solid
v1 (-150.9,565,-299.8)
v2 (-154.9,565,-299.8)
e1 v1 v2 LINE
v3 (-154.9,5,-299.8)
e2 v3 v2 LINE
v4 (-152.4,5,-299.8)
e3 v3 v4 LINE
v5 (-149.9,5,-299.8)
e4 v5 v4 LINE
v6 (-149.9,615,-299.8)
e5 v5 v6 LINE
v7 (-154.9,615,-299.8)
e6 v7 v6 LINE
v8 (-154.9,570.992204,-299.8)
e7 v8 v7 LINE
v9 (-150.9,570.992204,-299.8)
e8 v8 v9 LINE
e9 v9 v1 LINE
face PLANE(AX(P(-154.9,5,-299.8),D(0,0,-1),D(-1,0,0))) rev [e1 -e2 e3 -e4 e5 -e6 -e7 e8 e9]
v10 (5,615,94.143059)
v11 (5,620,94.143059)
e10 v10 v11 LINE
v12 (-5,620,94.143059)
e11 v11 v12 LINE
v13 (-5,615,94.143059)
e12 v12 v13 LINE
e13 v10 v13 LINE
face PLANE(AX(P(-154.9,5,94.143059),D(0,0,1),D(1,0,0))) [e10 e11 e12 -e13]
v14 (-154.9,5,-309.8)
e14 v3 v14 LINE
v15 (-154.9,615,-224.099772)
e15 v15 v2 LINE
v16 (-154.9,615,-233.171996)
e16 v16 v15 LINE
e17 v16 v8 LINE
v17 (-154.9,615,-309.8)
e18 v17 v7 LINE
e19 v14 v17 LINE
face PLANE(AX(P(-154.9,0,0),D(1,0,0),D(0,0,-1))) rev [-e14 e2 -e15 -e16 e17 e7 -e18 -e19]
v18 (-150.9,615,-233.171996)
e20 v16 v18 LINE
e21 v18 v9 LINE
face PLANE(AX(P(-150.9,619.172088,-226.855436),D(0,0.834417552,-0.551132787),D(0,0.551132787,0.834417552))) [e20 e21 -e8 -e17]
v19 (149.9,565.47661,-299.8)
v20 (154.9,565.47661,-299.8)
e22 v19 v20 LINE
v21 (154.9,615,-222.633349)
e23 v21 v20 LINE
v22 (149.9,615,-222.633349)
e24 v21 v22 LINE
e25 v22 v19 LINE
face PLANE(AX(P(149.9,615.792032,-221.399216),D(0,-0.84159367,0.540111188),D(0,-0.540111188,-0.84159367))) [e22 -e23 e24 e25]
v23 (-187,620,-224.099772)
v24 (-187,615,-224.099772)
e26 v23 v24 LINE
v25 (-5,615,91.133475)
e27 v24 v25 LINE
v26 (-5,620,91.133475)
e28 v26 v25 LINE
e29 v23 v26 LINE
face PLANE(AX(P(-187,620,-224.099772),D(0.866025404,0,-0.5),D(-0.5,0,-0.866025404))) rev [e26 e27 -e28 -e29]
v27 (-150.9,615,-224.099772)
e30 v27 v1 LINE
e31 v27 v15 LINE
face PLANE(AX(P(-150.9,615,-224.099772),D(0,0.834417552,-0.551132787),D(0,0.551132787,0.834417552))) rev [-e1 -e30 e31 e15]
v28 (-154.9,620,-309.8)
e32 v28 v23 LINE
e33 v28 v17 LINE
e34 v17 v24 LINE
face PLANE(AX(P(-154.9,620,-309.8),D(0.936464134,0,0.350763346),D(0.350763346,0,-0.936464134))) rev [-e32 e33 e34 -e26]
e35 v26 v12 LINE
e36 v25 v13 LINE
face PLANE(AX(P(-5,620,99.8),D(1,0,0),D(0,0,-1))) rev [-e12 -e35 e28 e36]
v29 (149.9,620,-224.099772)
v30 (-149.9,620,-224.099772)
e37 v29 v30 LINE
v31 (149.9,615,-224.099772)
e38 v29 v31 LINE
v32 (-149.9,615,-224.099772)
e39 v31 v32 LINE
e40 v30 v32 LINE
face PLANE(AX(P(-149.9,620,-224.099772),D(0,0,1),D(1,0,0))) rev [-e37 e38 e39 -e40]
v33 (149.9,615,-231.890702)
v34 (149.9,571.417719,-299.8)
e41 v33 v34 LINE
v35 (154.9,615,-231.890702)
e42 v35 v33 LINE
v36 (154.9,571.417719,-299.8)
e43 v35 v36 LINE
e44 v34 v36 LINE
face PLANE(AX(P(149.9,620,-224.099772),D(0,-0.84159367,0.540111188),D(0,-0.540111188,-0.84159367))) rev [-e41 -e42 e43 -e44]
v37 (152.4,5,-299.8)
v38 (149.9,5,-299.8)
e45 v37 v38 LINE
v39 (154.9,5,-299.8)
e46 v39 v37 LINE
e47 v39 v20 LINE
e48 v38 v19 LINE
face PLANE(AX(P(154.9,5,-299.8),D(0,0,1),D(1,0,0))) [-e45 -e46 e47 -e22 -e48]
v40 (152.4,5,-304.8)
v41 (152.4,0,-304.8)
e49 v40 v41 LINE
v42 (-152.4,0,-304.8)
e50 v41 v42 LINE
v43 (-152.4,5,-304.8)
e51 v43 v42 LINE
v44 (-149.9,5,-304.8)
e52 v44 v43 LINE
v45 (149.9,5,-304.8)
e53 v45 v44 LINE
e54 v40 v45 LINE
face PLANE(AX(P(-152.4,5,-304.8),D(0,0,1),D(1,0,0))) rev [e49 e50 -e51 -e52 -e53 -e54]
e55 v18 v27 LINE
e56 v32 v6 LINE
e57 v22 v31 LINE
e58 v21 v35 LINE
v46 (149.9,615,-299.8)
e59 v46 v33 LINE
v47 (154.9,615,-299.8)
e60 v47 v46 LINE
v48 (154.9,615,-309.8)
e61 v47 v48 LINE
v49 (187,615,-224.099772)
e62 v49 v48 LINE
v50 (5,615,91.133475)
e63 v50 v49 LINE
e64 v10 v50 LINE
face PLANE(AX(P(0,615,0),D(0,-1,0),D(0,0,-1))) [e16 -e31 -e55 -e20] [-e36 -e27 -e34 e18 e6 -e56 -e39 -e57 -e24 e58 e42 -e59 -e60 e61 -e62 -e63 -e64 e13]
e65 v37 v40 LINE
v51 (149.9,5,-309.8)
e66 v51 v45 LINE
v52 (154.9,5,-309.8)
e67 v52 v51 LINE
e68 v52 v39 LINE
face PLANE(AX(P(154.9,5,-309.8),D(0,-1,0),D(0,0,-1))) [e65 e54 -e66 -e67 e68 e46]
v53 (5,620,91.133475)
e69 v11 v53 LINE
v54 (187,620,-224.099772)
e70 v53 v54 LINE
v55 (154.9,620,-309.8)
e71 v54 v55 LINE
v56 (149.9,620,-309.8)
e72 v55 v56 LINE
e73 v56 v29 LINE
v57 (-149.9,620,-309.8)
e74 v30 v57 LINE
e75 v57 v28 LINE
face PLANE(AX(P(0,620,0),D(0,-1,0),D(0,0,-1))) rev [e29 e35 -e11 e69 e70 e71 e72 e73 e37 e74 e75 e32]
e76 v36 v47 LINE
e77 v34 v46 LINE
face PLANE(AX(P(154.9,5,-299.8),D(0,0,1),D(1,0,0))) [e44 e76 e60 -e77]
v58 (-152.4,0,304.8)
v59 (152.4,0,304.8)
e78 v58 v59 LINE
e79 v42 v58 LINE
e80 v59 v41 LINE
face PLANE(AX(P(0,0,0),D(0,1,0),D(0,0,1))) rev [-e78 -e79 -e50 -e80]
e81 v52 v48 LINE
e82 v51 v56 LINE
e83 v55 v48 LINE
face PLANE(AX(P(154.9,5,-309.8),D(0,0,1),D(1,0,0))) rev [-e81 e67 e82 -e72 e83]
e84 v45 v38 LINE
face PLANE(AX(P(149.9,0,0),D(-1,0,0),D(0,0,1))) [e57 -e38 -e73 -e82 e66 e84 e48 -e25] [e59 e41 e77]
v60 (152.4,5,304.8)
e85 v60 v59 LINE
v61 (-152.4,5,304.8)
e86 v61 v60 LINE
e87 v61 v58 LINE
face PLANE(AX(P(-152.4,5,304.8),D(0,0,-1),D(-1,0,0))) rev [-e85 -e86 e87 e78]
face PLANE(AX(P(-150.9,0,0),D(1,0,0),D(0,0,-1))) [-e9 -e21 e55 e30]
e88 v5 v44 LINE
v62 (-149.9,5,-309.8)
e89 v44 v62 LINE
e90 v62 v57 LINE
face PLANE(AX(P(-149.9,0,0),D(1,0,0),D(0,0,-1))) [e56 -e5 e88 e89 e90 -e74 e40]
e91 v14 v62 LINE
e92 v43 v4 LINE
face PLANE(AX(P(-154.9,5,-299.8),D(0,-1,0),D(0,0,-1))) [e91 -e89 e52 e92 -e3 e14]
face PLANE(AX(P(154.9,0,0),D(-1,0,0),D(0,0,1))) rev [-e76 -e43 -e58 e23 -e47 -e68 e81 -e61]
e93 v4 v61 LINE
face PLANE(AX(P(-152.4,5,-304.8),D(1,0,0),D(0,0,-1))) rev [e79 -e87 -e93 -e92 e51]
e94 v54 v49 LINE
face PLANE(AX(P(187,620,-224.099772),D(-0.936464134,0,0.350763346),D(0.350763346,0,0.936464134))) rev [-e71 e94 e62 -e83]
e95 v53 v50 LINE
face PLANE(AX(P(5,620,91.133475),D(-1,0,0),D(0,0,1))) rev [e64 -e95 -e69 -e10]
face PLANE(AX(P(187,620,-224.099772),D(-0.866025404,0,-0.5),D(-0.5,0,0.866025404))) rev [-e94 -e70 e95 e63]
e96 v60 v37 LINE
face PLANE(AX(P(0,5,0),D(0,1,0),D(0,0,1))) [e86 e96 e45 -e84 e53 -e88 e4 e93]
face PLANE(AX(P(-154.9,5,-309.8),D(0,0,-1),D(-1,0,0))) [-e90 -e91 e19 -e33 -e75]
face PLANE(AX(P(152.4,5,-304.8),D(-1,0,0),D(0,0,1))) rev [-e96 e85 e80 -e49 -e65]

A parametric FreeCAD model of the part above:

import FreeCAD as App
import Part
import Sketcher

V = App.Vector
Q = App.Units.Quantity


def add_polygon(sketch, points):
    """Adds a closed chain of lines whose ends are joined by coincident constraints."""
    first, n = sketch.GeometryCount, len(points)
    for a, b in zip(points, points[1:] + points[:1]):
        sketch.addGeometry(Part.LineSegment(App.Vector(*a, 0), App.Vector(*b, 0)), False)
    for i in range(n):
        sketch.addConstraint(Sketcher.Constraint("Coincident", first + i, 2, first + (i + 1) % n, 1))

doc = App.newDocument("Part")
params = doc.addObject("Spreadsheet::Sheet", "Params")
for row, (alias, value) in enumerate([
    ("sketch1_width", "304.8 mm"),
    ("sketch1_height", "609.6 mm"),
    ("pad1_length", "5 mm"),
    ("sketch2_width", "610 mm"),
    ("sketch2_height", "10 mm"),
    ("pad2_length", "5 mm"),
    ("sketch3_width", "610 mm"),
    ("sketch3_height", "10 mm"),
    ("pad3_length", "5 mm"),
    ("sketch4_width", "5 mm"),
    ("sketch4_height", "10 mm"),
    ("sketch4_length", "364 mm"),
    ("sketch4_width2", "309.8 mm"),
    ("sketch4_width3", "149.9 mm"),
    ("pad4_length", "5 mm"),
    ("sketch5_length", "5 mm"),
    ("pad5_length", "4 mm"),
    ("sketch6_length", "5 mm"),
    ("pad6_length", "5 mm"),
    ("sketch7_width", "309.8 mm"),
    ("pocket1_length", "615 mm"),
], start=1):
    params.set(f"A{row}", alias)
    params.set(f"B{row}", "=" + value)
    params.setAlias(f"B{row}", alias)

body = doc.addObject("PartDesign::Body", "Body")

sketch1 = body.newObject("Sketcher::SketchObject", "Sketch")
sketch1.AttachmentSupport = (doc.getObject("XZ_Plane"), [""])
sketch1.MapMode = "FlatFace"
add_polygon(sketch1, [(-152, -305), (-152, 305), (152, 305), (152, -305)])
sketch1.addConstraint([
    Sketcher.Constraint("Vertical", 0),
    Sketcher.Constraint("Horizontal", 1),
    Sketcher.Constraint("Vertical", 2),
    Sketcher.Constraint("Horizontal", 3),
    Sketcher.Constraint("Symmetric", 0, 2, 2, 2, -1, 1),
    Sketcher.Constraint("DistanceX", 1, 1, 1, 2, 304.8),
    Sketcher.Constraint("DistanceY", 0, 1, 0, 2, 609.6),
])
sketch1.setExpression("Constraints[9]", "Params.sketch1_width")
sketch1.setExpression("Constraints[10]", "Params.sketch1_height")
pad1 = body.newObject("PartDesign::Pad", "Pad")
pad1.Profile = sketch1
pad1.setExpression("Length", "Params.pad1_length")
pad1.Reversed = True

sketch2 = body.newObject("Sketcher::SketchObject", "Sketch001")
sketch2.AttachmentSupport = (doc.getObject("YZ_Plane"), [""])
sketch2.MapMode = "FlatFace"
sketch2.AttachmentOffset = App.Placement(V(0, 0, 152.4), App.Rotation())
add_polygon(sketch2, [(615, 310), (5, 310), (5, 300), (615, 300)])
add_polygon(sketch2, [(615, -300), (5, -300), (5, -310), (615, -310)])
sketch2.addConstraint([
    Sketcher.Constraint("Horizontal", 0),
    Sketcher.Constraint("Vertical", 1),
    Sketcher.Constraint("Horizontal", 2),
    Sketcher.Constraint("Vertical", 3),
    Sketcher.Constraint("Horizontal", 4),
    Sketcher.Constraint("Vertical", 5),
    Sketcher.Constraint("Horizontal", 6),
    Sketcher.Constraint("Vertical", 7),
    Sketcher.Constraint("Symmetric", 1, 2, 4, 2, -1),
    Sketcher.Constraint("Symmetric", 3, 2, 6, 2, -1),
    Sketcher.Constraint("DistanceX", 0, 2, 0, 1, 610.0),
    Sketcher.Constraint("DistanceY", 1, 2, 1, 1, 10.0),
    Sketcher.Constraint("DistanceX", -1, 1, 0, 2, 5.0),
    Sketcher.Constraint("DistanceY", -1, 1, 0, 2, 309.8),
])
sketch2.setExpression("Constraints[18]", "Params.sketch2_width")
sketch2.setExpression("Constraints[19]", "Params.sketch2_height")
pad2 = body.newObject("PartDesign::Pad", "Pad001")
pad2.Profile = sketch2
pad2.setExpression("Length", "Params.pad2_length")
pad2.Midplane = True

sketch3 = body.newObject("Sketcher::SketchObject", "Sketch002")
sketch3.AttachmentSupport = (doc.getObject("YZ_Plane"), [""])
sketch3.MapMode = "FlatFace"
sketch3.AttachmentOffset = App.Placement(V(0, 0, -152.4), App.Rotation())
add_polygon(sketch3, [(615, -310), (5, -310), (5, -300), (615, -300)])
add_polygon(sketch3, [(615, 300), (5, 300), (5, 310), (615, 310)])
sketch3.addConstraint([
    Sketcher.Constraint("Horizontal", 0),
    Sketcher.Constraint("Vertical", 1),
    Sketcher.Constraint("Horizontal", 2),
    Sketcher.Constraint("Vertical", 3),
    Sketcher.Constraint("Horizontal", 4),
    Sketcher.Constraint("Vertical", 5),
    Sketcher.Constraint("Horizontal", 6),
    Sketcher.Constraint("Vertical", 7),
    Sketcher.Constraint("Symmetric", 1, 2, 4, 2, -1),
    Sketcher.Constraint("Symmetric", 3, 2, 6, 2, -1),
    Sketcher.Constraint("DistanceX", 0, 2, 0, 1, 610.0),
    Sketcher.Constraint("DistanceY", 1, 1, 1, 2, 10.0),
    Sketcher.Constraint("DistanceX", -1, 1, 0, 2, 5.0),
    Sketcher.Constraint("DistanceY", 0, 2, -1, 1, 309.8),
])
sketch3.setExpression("Constraints[18]", "Params.sketch3_width")
sketch3.setExpression("Constraints[19]", "Params.sketch3_height")
pad3 = body.newObject("PartDesign::Pad", "Pad002")
pad3.Profile = sketch3
pad3.setExpression("Length", "Params.pad3_length")
pad3.Midplane = True

sketch4 = body.newObject("Sketcher::SketchObject", "Sketch003")
sketch4.AttachmentSupport = (doc.getObject("XZ_Plane"), [""])
sketch4.MapMode = "FlatFace"
sketch4.AttachmentOffset = App.Placement(V(0, 0, -615), App.Rotation())
add_polygon(sketch4, [(-155, 310), (155, 310), (155, 300), (5, 300), (5, 91), (187, -224), (155, -310), (150, -310), (150, -224), (-150, -224), (-150, -310), (-155, -310), (-187, -224), (-5, 91), (-5, 300), (-155, 300)])
sketch4.addConstraint([
    Sketcher.Constraint("Horizontal", 0),
    Sketcher.Constraint("Vertical", 1),
    Sketcher.Constraint("Horizontal", 2),
    Sketcher.Constraint("Vertical", 3),
    Sketcher.Constraint("Horizontal", 6),
    Sketcher.Constraint("Vertical", 7),
    Sketcher.Constraint("Horizontal", 8),
    Sketcher.Constraint("Vertical", 9),
    Sketcher.Constraint("Horizontal", 10),
    Sketcher.Constraint("Vertical", 13),
    Sketcher.Constraint("Horizontal", 14),
    Sketcher.Constraint("Vertical", 15),
    Sketcher.Constraint("Symmetric", 0, 2, 10, 2, -1, 1),
    Sketcher.Constraint("Symmetric", 5, 2, 15, 2, -1, 1),
    Sketcher.Constraint("Symmetric", 4, 2, 11, 2, -2),
    Sketcher.Constraint("Symmetric", 3, 2, 12, 2, -2),
    Sketcher.Constraint("Symmetric", 1, 2, 14, 2, -2),
    Sketcher.Constraint("Horizontal", 4, 2, 7, 2),
    Sketcher.Constraint("Equal", 6, 10),
    Sketcher.Constraint("DistanceX", 6, 2, 6, 1, 5.0),
    Sketcher.Constraint("DistanceY", 1, 2, 1, 1, 10.0),
    Sketcher.Constraint("Angle", 4, Q("-60 deg")),
    Sketcher.Constraint("Distance", 4, 364.0),
    Sketcher.Constraint("DistanceX", 0, 1, 0, 2, 309.8),
    Sketcher.Constraint("DistanceX", 2, 2, 2, 1, 149.9),
    Sketcher.Constraint("DistanceY", -1, 1, 0, 2, 309.8),
    Sketcher.Constraint("DistanceY", 3, 2, 3, 1, 208.666525),
])
sketch4.setExpression("Constraints[35]", "Params.sketch4_width")
sketch4.setExpression("Constraints[36]", "Params.sketch4_height")
sketch4.setExpression("Constraints[38]", "Params.sketch4_length")
sketch4.setExpression("Constraints[39]", "Params.sketch4_width2")
sketch4.setExpression("Constraints[40]", "Params.sketch4_width3")
pad4 = body.newObject("PartDesign::Pad", "Pad003")
pad4.Profile = sketch4
pad4.setExpression("Length", "Params.pad4_length")
pad4.Reversed = True

sketch5 = body.newObject("Sketcher::SketchObject", "Sketch004")
sketch5.AttachmentSupport = (doc.getObject("YZ_Plane"), [""])
sketch5.MapMode = "FlatFace"
sketch5.AttachmentOffset = App.Placement(V(0, 0, -154.9), App.Rotation())
add_polygon(sketch5, [(565, -300), (615, -224), (619, -227), (569, -303)])
sketch5.addConstraint([
    Sketcher.Constraint("Perpendicular", 0, 1),
    Sketcher.Constraint("Perpendicular", 1, 2),
    Sketcher.Constraint("Perpendicular", 2, 3),
    Sketcher.Constraint("Distance", 1, 5.0),
    Sketcher.Constraint("DistanceX", -1, 1, 0, 2, 615.0),
    Sketcher.Constraint("DistanceX", -1, 1, 3, 2, 565.0),
    Sketcher.Constraint("DistanceY", 3, 2, -1, 1, 299.8),
    Sketcher.Constraint("Distance", 0, 90.722238),
])
sketch5.setExpression("Constraints[7]", "Params.sketch5_length")
pad5 = body.newObject("PartDesign::Pad", "Pad004")
pad5.Profile = sketch5
pad5.setExpression("Length", "Params.pad5_length")

sketch6 = body.newObject("Sketcher::SketchObject", "Sketch005")
sketch6.AttachmentSupport = (doc.getObject("YZ_Plane"), [""])
sketch6.MapMode = "FlatFace"
sketch6.AttachmentOffset = App.Placement(V(0, 0, 154.9), App.Rotation())
add_polygon(sketch6, [(565, -309.8), (620, -224.099772), (615.792032, -221.399216), (560.792032, -307.099444)])
sketch6.addConstraint([
    Sketcher.Constraint("Perpendicular", 0, 1),
    Sketcher.Constraint("Perpendicular", 1, 2),
    Sketcher.Constraint("Perpendicular", 2, 3),
    Sketcher.Constraint("Distance", 1, 5.0),
    Sketcher.Constraint("DistanceX", -1, 1, 0, 2, 620.0),
    Sketcher.Constraint("DistanceX", -1, 1, 3, 2, 565.0),
    Sketcher.Constraint("DistanceY", 3, 2, -1, 1, 309.8),
    Sketcher.Constraint("DistanceX", -1, 1, 1, 2, 615.792032),
])
sketch6.setExpression("Constraints[7]", "Params.sketch6_length")
pad6 = body.newObject("PartDesign::Pad", "Pad005")
pad6.Profile = sketch6
pad6.setExpression("Length", "Params.pad6_length")
pad6.Reversed = True

sketch7 = body.newObject("Sketcher::SketchObject", "Sketch006")
sketch7.AttachmentSupport = (doc.getObject("XZ_Plane"), [""])
sketch7.MapMode = "FlatFace"
sketch7.AttachmentOffset = App.Placement(V(0, 0, -620), App.Rotation())
add_polygon(sketch7, [(-155, 94), (-155, 310), (155, 310), (155, 94)])
sketch7.addConstraint([
    Sketcher.Constraint("Vertical", 0),
    Sketcher.Constraint("Horizontal", 1),
    Sketcher.Constraint("Vertical", 2),
    Sketcher.Constraint("Horizontal", 3),
    Sketcher.Constraint("DistanceX", 1, 1, 1, 2, 309.8),
    Sketcher.Constraint("DistanceX", 0, 2, -1, 1, 154.9),
    Sketcher.Constraint("DistanceY", -1, 1, 0, 2, 309.8),
    Sketcher.Constraint("DistanceY", 0, 1, 0, 2, 215.656941),
])
sketch7.setExpression("Constraints[8]", "Params.sketch7_width")
pocket1 = body.newObject("PartDesign::Pocket", "Pocket")
pocket1.Profile = sketch7
pocket1.setExpression("Length", "Params.pocket1_length")
pocket1.Reversed = True

doc.recompute()
